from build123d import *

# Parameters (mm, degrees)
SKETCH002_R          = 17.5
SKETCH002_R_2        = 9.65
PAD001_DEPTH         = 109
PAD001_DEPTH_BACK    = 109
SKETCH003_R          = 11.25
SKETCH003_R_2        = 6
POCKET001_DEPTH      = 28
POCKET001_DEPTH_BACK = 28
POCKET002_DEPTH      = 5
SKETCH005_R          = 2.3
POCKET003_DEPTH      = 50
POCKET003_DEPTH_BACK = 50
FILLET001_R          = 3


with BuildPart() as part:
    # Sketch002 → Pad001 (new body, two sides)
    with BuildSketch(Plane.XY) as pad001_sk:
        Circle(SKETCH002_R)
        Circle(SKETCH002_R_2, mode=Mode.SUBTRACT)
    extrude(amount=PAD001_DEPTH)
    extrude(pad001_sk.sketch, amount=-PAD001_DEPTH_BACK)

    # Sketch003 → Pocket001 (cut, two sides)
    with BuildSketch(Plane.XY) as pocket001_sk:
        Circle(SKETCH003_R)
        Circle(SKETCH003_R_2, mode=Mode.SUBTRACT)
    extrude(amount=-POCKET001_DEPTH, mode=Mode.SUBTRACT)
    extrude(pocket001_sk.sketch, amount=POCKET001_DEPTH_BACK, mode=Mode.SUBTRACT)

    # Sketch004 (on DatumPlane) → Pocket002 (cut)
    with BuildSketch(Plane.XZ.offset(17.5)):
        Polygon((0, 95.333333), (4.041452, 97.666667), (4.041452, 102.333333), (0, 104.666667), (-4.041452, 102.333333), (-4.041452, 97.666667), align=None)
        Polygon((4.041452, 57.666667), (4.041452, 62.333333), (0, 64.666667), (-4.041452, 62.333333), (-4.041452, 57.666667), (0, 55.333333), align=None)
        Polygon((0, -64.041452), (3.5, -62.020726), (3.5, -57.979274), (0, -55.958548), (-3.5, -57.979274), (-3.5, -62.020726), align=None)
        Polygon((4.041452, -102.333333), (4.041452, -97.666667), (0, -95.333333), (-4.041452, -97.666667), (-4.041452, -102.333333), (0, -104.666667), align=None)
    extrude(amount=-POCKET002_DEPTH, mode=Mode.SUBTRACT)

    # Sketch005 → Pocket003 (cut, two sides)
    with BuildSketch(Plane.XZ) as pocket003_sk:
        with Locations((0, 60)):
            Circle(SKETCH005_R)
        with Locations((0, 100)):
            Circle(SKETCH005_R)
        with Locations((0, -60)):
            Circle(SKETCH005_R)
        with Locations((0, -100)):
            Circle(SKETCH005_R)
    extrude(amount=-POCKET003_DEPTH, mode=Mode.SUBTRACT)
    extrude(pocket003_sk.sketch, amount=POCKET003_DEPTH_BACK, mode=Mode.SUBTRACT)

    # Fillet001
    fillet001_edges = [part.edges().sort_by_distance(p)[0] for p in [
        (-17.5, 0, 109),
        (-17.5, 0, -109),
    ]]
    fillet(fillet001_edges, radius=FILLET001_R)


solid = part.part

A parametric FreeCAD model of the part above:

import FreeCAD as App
import Part
import Sketcher

V = App.Vector
Q = App.Units.Quantity


def edges_at(feature, points):
    """Names of the edges that pass closest to the given points."""
    edges = feature.Shape.Edges
    near = lambda p: min(range(len(edges)), key=lambda i: edges[i].distToShape(Part.Vertex(*p))[0])
    return sorted({f"Edge{near(p) + 1}" for p in points})


def add_polygon(sketch, points):
    """Adds a closed chain of lines whose ends are joined by coincident constraints."""
    first, n = sketch.GeometryCount, len(points)
    for a, b in zip(points, points[1:] + points[:1]):
        sketch.addGeometry(Part.LineSegment(App.Vector(*a, 0), App.Vector(*b, 0)), False)
    for i in range(n):
        sketch.addConstraint(Sketcher.Constraint("Coincident", first + i, 2, first + (i + 1) % n, 1))

doc = App.newDocument("Part")
body = doc.addObject("PartDesign::Body", "Body")

# Sketch on XY plane
sketch1 = body.newObject("Sketcher::SketchObject", "Sketch")
sketch1.AttachmentSupport = (doc.getObject("XY_Plane"), [""])
sketch1.MapMode = "FlatFace"
sketch1.addGeometry(Part.Circle(V(0, 0, 0), V(0, 0, 1), 18), False)
sketch1.addGeometry(Part.Circle(V(0, 0, 0), V(0, 0, 1), 10), False)
sketch1.addConstraint(Sketcher.Constraint("Coincident", 0, 3, -1, 1))
sketch1.addConstraint(Sketcher.Constraint("Coincident", 1, 3, -1, 1))
sketch1.addConstraint(Sketcher.Constraint("Diameter", 0, 35.0))
sketch1.addConstraint(Sketcher.Constraint("Diameter", 1, 19.3))
pad1 = body.newObject("PartDesign::Pad", "Pad")
pad1.Profile = sketch1
pad1.Type = "TwoLengths"
pad1.Length = 109
pad1.Length2 = 109

# Sketch on XY plane
sketch2 = body.newObject("Sketcher::SketchObject", "Sketch001")
sketch2.AttachmentSupport = (doc.getObject("XY_Plane"), [""])
sketch2.MapMode = "FlatFace"
sketch2.addGeometry(Part.Circle(V(0, 0, 0), V(0, 0, 1), 11), False)
sketch2.addGeometry(Part.Circle(V(0, 0, 0), V(0, 0, 1), 6), False)
sketch2.addConstraint(Sketcher.Constraint("Coincident", 0, 3, -1, 1))
sketch2.addConstraint(Sketcher.Constraint("Coincident", 1, 3, -1, 1))
sketch2.addConstraint(Sketcher.Constraint("Diameter", 1, 12.0))
sketch2.addConstraint(Sketcher.Constraint("Diameter", 0, 22.5))
pocket1 = body.newObject("PartDesign::Pocket", "Pocket")
pocket1.Profile = sketch2
pocket1.Type = "TwoLengths"
pocket1.Length = 28
pocket1.Length2 = 28

# Sketch on XZ plane
sketch3 = body.newObject("Sketcher::SketchObject", "Sketch002")
sketch3.AttachmentSupport = (doc.getObject("XZ_Plane"), [""])
sketch3.MapMode = "FlatFace"
sketch3.AttachmentOffset = App.Placement(V(0, 0, 17.5), App.Rotation())
add_polygon(sketch3, [(0, 95.3), (4, 97.7), (4, 102.3), (0, 104.7), (-4, 102.3), (-4, 97.7)])  # lines 0-5
add_polygon(sketch3, [(4, 57.7), (4, 62.3), (0, 64.7), (-4, 62.3), (-4, 57.7), (0, 55.3)])  # lines 6-11
add_polygon(sketch3, [(0, -64), (3.5, -62), (3.5, -58), (0, -56), (-3.5, -58), (-3.5, -62)])  # lines 12-17
add_polygon(sketch3, [(4, -102.3), (4, -97.7), (0, -95.3), (-4, -97.7), (-4, -102.3), (0, -104.7)])  # lines 18-23
sketch3.addConstraint(Sketcher.Constraint("Vertical", 1))
sketch3.addConstraint(Sketcher.Constraint("Vertical", 4))
sketch3.addConstraint(Sketcher.Constraint("Vertical", 6))
sketch3.addConstraint(Sketcher.Constraint("Vertical", 9))
sketch3.addConstraint(Sketcher.Constraint("Vertical", 13))
sketch3.addConstraint(Sketcher.Constraint("Vertical", 16))
sketch3.addConstraint(Sketcher.Constraint("Vertical", 18))
sketch3.addConstraint(Sketcher.Constraint("Vertical", 21))
sketch3.addConstraint(Sketcher.Constraint("Symmetric", 4, 2, 18, 2, -1, 1))
sketch3.addConstraint(Sketcher.Constraint("Symmetric", 5, 2, 19, 2, -1, 1))
sketch3.addConstraint(Sketcher.Constraint("Symmetric", 0, 2, 20, 2, -1, 1))
sketch3.addConstraint(Sketcher.Constraint("Symmetric", 2, 2, 22, 2, -1, 1))
sketch3.addConstraint(Sketcher.Constraint("Symmetric", 1, 2, 3, 2, -2))
sketch3.addConstraint(Sketcher.Constraint("Symmetric", 6, 2, 8, 2, -2))
sketch3.addConstraint(Sketcher.Constraint("Symmetric", 13, 2, 15, 2, -2))
sketch3.addConstraint(Sketcher.Constraint("PointOnObject", 2, 2, -2))
sketch3.addConstraint(Sketcher.Constraint("PointOnObject", 5, 2, -2))
sketch3.addConstraint(Sketcher.Constraint("PointOnObject", 7, 2, -2))
sketch3.addConstraint(Sketcher.Constraint("PointOnObject", 10, 2, -2))
sketch3.addConstraint(Sketcher.Constraint("PointOnObject", 14, 2, -2))
sketch3.addConstraint(Sketcher.Constraint("PointOnObject", 17, 2, -2))
sketch3.addConstraint(Sketcher.Constraint("Parallel", 0, 3))
sketch3.addConstraint(Sketcher.Constraint("Parallel", 2, 5))
sketch3.addConstraint(Sketcher.Constraint("Parallel", 5, 7))
sketch3.addConstraint(Sketcher.Constraint("Parallel", 7, 10))
sketch3.addConstraint(Sketcher.Constraint("Parallel", 8, 11))
sketch3.addConstraint(Sketcher.Constraint("Parallel", 11, 12))
sketch3.addConstraint(Sketcher.Constraint("Parallel", 10, 14))
sketch3.addConstraint(Sketcher.Constraint("Parallel", 14, 17))
sketch3.addConstraint(Sketcher.Constraint("Parallel", 19, 22))
sketch3.addConstraint(Sketcher.Constraint("Parallel", 20, 23))
sketch3.addConstraint(Sketcher.Constraint("Vertical", 1, 2, 6, 2))
sketch3.addConstraint(Sketcher.Constraint("Equal", 4, 6))
sketch3.addConstraint(Sketcher.Constraint("Angle", 0, Q("30.000006 deg")))
sketch3.addConstraint(Sketcher.Constraint("DistanceY", 0, 2, 2, 2, 7.0))
sketch3.addConstraint(Sketcher.Constraint("DistanceY", 6, 2, 5, 2, 33.0))
sketch3.addConstraint(Sketcher.Constraint("DistanceX", 15, 2, 13, 2, 7.0))
sketch3.addConstraint(Sketcher.Constraint("DistanceY", 1, 1, 1, 2, 4.666666))
sketch3.addConstraint(Sketcher.Constraint("DistanceY", 13, 1, 13, 2, 4.041452))
sketch3.addConstraint(Sketcher.Constraint("DistanceY", 12, 2, 10, 2, 117.354059))
sketch3.addConstraint(Sketcher.Constraint("DistanceY", 18, 2, 12, 2, 35.645941))
pocket2 = body.newObject("PartDesign::Pocket", "Pocket001")
pocket2.Profile = sketch3
pocket2.Length = 5

# Sketch on XZ plane
sketch4 = body.newObject("Sketcher::SketchObject", "Sketch003")
sketch4.AttachmentSupport = (doc.getObject("XZ_Plane"), [""])
sketch4.MapMode = "FlatFace"
sketch4.addGeometry(Part.Circle(V(0, 60, 0), V(0, 0, 1), 2.3), False)
sketch4.addGeometry(Part.Circle(V(0, 100, 0), V(0, 0, 1), 2.3), False)
sketch4.addGeometry(Part.Circle(V(0, -60, 0), V(0, 0, 1), 2.3), False)
sketch4.addGeometry(Part.Circle(V(0, -100, 0), V(0, 0, 1), 2.3), False)
sketch4.addConstraint(Sketcher.Constraint("Equal", 0, 1))
sketch4.addConstraint(Sketcher.Constraint("Equal", 1, 2))
sketch4.addConstraint(Sketcher.Constraint("Equal", 2, 3))
sketch4.addConstraint(Sketcher.Constraint("Symmetric", 0, 3, 2, 3, -1, 1))
sketch4.addConstraint(Sketcher.Constraint("Symmetric", 1, 3, 3, 3, -1, 1))
sketch4.addConstraint(Sketcher.Constraint("PointOnObject", 0, 3, -2))
sketch4.addConstraint(Sketcher.Constraint("PointOnObject", 1, 3, -2))
sketch4.addConstraint(Sketcher.Constraint("Diameter", 0, 4.6))
sketch4.addConstraint(Sketcher.Constraint("DistanceY", -1, 1, 0, 3, 60.0))
sketch4.addConstraint(Sketcher.Constraint("DistanceY", -1, 1, 1, 3, 100.0))
pocket3 = body.newObject("PartDesign::Pocket", "Pocket002")
pocket3.Profile = sketch4
pocket3.Type = "ThroughAll"
pocket3.Midplane = True
doc.recompute()

fillet = body.newObject("PartDesign::Fillet", "Fillet")
fillet.Base = (pocket3, edges_at(pocket3, [(-17.5, 0, 109), (-17.5, 0, -109)]))
fillet.Radius = 3

doc.recompute()
